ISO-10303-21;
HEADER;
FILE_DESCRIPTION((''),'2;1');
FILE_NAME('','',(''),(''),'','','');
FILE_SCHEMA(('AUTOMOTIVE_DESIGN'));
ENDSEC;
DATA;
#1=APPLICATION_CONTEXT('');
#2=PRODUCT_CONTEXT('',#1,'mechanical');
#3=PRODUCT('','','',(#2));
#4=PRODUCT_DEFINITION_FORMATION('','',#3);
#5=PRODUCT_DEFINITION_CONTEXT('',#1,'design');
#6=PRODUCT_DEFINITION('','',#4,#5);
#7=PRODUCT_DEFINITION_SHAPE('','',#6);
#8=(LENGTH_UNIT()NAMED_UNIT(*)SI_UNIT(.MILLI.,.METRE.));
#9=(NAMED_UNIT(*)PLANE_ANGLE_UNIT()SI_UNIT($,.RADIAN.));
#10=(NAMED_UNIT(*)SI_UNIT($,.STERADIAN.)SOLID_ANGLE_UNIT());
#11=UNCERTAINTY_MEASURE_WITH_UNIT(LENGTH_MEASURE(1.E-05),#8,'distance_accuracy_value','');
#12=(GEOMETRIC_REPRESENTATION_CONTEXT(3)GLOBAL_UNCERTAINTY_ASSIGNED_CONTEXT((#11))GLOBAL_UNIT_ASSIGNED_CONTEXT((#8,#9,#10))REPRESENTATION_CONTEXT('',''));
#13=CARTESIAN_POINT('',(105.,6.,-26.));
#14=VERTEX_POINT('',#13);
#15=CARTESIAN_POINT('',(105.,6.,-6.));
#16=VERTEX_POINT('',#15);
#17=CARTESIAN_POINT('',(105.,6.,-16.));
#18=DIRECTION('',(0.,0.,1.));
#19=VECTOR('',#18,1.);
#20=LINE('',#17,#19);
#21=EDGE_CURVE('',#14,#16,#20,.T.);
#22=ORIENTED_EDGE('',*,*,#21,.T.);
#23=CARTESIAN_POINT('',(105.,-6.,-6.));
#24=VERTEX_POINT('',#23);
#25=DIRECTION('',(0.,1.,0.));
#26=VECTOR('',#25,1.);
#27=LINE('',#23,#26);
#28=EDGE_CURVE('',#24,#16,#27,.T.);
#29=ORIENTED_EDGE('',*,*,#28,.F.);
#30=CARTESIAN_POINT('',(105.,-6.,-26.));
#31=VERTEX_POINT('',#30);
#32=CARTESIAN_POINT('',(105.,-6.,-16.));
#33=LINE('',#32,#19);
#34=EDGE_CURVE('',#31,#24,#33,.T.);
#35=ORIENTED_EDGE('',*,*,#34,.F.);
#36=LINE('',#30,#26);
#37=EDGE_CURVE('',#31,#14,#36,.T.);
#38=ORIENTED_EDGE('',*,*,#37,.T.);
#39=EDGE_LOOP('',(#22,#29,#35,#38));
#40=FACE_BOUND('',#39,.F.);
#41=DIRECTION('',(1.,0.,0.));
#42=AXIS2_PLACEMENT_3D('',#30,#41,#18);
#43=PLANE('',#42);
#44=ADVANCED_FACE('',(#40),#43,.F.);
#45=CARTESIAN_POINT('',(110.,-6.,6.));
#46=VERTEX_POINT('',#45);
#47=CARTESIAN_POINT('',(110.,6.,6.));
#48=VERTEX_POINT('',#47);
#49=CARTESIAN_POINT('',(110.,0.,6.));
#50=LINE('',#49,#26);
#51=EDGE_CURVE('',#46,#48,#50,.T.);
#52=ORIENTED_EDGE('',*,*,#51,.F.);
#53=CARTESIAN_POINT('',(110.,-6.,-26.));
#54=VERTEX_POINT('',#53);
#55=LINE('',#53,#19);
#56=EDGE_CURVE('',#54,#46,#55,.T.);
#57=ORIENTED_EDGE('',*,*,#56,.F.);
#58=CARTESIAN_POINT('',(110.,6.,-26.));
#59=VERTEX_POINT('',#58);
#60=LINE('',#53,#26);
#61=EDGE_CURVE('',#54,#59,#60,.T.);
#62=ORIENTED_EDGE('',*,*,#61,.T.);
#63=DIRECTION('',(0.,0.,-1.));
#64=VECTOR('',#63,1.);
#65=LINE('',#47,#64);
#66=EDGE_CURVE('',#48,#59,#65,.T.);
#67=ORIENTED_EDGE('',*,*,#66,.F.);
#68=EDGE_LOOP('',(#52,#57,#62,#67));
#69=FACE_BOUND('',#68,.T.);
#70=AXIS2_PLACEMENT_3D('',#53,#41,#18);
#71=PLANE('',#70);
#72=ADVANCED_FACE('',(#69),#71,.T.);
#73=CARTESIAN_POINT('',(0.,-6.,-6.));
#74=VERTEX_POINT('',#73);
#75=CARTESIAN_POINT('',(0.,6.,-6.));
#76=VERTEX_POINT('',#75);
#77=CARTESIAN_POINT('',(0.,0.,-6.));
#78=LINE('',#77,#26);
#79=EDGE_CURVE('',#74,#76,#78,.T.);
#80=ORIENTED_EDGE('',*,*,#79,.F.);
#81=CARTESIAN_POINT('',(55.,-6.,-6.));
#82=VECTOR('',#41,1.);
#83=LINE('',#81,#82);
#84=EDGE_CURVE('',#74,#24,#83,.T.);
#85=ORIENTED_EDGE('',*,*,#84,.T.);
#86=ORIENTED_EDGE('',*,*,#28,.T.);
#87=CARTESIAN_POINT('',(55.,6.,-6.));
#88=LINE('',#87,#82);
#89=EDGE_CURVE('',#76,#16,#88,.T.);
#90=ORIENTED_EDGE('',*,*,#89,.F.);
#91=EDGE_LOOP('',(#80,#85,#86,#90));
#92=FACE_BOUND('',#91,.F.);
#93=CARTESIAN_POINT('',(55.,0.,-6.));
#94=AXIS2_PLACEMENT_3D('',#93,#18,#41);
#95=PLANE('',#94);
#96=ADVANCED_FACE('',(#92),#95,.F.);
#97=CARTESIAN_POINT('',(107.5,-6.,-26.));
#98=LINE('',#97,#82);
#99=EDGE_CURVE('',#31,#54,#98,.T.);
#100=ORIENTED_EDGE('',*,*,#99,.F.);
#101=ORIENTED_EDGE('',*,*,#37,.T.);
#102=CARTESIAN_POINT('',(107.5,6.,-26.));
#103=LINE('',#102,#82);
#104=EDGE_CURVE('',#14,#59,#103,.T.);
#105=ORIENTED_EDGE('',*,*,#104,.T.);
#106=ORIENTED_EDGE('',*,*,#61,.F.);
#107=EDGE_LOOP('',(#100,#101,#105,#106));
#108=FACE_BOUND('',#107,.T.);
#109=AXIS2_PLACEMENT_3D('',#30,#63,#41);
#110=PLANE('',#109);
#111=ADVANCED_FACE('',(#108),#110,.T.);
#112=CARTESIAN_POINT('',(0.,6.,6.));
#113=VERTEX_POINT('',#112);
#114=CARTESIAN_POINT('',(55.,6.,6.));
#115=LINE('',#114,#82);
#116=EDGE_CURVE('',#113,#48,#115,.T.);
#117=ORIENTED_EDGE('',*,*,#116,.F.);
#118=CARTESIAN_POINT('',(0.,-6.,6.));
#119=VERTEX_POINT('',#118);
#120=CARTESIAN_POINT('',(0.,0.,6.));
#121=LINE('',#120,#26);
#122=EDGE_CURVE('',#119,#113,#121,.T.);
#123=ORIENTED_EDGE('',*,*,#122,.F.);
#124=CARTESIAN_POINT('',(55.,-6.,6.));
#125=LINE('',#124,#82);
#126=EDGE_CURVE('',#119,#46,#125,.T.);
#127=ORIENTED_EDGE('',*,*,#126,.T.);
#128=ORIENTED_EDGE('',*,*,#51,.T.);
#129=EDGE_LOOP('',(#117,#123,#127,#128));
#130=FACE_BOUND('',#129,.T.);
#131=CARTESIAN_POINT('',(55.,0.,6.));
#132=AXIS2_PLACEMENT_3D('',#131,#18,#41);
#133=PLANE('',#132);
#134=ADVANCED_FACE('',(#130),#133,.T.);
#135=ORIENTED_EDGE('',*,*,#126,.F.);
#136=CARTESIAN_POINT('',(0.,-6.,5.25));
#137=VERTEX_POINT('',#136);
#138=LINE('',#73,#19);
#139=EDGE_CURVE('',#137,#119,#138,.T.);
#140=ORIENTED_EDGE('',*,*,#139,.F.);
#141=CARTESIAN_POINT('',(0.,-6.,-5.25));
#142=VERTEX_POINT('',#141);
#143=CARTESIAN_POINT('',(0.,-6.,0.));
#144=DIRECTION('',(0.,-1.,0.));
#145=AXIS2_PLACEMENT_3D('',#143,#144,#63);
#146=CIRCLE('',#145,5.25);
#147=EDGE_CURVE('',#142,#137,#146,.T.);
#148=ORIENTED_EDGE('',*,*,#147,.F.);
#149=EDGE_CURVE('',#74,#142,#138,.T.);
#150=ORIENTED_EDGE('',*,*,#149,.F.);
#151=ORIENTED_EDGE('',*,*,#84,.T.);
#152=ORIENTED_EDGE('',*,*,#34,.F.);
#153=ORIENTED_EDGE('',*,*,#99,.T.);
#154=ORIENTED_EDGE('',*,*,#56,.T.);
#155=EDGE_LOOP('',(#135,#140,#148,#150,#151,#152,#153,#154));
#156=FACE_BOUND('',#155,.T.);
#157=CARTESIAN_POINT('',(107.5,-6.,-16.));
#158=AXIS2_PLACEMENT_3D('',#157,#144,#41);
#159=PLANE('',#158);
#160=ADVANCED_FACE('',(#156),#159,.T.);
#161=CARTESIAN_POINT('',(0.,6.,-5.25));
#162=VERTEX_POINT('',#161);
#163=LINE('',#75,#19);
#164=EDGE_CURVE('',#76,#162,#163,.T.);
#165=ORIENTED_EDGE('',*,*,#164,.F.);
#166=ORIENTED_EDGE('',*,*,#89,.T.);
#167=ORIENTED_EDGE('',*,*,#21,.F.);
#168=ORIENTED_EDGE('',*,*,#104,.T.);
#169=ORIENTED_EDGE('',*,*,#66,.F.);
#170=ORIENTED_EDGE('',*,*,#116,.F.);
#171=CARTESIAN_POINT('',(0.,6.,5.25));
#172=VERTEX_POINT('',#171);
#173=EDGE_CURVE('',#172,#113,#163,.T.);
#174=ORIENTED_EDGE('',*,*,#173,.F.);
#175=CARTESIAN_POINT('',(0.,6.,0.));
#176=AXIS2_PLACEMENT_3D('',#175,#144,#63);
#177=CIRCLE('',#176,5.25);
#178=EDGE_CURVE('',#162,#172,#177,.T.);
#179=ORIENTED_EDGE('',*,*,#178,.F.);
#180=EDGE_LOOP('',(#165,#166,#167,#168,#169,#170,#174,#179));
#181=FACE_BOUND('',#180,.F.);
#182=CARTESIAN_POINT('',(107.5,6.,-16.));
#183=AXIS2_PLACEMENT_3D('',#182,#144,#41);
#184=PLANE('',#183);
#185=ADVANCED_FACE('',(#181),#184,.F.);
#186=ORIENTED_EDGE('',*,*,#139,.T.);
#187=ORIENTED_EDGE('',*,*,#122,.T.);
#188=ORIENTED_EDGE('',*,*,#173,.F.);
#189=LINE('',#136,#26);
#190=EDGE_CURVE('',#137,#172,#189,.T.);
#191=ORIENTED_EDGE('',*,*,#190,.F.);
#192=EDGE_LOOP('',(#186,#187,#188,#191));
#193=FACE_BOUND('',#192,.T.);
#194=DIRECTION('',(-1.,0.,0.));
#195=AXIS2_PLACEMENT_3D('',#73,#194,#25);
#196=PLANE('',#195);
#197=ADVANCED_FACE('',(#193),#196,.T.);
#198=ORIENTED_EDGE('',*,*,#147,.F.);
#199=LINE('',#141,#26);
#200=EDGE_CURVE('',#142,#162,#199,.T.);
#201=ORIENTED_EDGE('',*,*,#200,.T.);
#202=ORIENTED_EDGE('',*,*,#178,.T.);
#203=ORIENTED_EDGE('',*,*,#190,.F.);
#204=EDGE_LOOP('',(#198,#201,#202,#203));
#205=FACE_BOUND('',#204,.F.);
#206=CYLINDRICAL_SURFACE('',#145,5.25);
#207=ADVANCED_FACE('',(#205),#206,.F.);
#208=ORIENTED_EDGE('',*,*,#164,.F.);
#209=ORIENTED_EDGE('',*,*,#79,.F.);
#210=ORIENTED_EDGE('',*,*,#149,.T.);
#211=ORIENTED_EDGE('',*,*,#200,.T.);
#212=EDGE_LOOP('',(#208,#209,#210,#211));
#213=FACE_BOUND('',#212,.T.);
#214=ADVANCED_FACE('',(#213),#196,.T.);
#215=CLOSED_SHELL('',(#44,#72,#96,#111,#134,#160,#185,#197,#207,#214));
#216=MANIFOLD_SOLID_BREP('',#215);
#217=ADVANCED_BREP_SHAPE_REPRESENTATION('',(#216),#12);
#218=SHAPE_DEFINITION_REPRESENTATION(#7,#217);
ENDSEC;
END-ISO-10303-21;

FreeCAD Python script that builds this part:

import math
import FreeCAD as App
import Part
import Sketcher

V = App.Vector


def add_polygon(sketch, points):
    """Adds a closed chain of lines whose ends are joined by coincident constraints."""
    first, n = sketch.GeometryCount, len(points)
    for a, b in zip(points, points[1:] + points[:1]):
        sketch.addGeometry(Part.LineSegment(App.Vector(*a, 0), App.Vector(*b, 0)), False)
    for i in range(n):
        sketch.addConstraint(Sketcher.Constraint("Coincident", first + i, 2, first + (i + 1) % n, 1))

doc = App.newDocument("Part")
params = doc.addObject("Spreadsheet::Sheet", "Params")
for row, (alias, value) in enumerate([
    ("sketch1_width", "110 mm"),
    ("sketch1_height", "12 mm"),
    ("pad1_length", "12 mm"),
    ("sketch2_radius", "5.25 mm"),
    ("pocket1_length", "12 mm"),
    ("sketch3_width", "5 mm"),
    ("sketch3_height", "20 mm"),
    ("pad2_length", "12 mm"),
], start=1):
    params.set(f"A{row}", alias)
    params.set(f"B{row}", "=" + value)
    params.setAlias(f"B{row}", alias)

body = doc.addObject("PartDesign::Body", "Body")

# Sketch on XY plane
sketch1 = body.newObject("Sketcher::SketchObject", "Sketch")
sketch1.AttachmentSupport = (doc.getObject("XY_Plane"), [""])
sketch1.MapMode = "FlatFace"
sketch1.AttachmentOffset = App.Placement(V(0, 0, -6), App.Rotation())
add_polygon(sketch1, [(0, 6), (0, -6), (110, -6), (110, 6)])  # lines 0-3
sketch1.addConstraint([
    Sketcher.Constraint("Vertical", 0),
    Sketcher.Constraint("Horizontal", 1),
    Sketcher.Constraint("Vertical", 2),
    Sketcher.Constraint("Horizontal", 3),
    Sketcher.Constraint("Symmetric", 0, 2, 3, 2, -1, 1),
    Sketcher.Constraint("DistanceX", 1, 1, 1, 2, 110.0),
    Sketcher.Constraint("DistanceY", 0, 2, 0, 1, 12.0),
])
sketch1.setExpression("Constraints[9]", "Params.sketch1_width")
sketch1.setExpression("Constraints[10]", "Params.sketch1_height")
pad1 = body.newObject("PartDesign::Pad", "Pad")
pad1.Profile = sketch1
pad1.setExpression("Length", "Params.pad1_length")

# Sketch on XZ plane
sketch2 = body.newObject("Sketcher::SketchObject", "Sketch001")
sketch2.AttachmentSupport = (doc.getObject("XZ_Plane"), [""])
sketch2.MapMode = "FlatFace"
sketch2.AttachmentOffset = App.Placement(V(0, 0, 6), App.Rotation())
sketch2.addGeometry([
    Part.ArcOfCircle(Part.Circle(V(0, 0, 0), V(0, 0, 1), 5.25), math.radians(-90), math.radians(90)),
    Part.LineSegment(V(0, 5.25, 0), V(0, -5.25, 0)),
], False)
sketch2.addConstraint([
    Sketcher.Constraint("Coincident", 0, 1, 1, 2),
    Sketcher.Constraint("Coincident", 1, 1, 0, 2),
    Sketcher.Constraint("Vertical", 1),
    Sketcher.Constraint("Coincident", 0, 3, -1, 1),
    Sketcher.Constraint("PointOnObject", 0, 1, -2),
    Sketcher.Constraint("Radius", 0, 5.25),
])
sketch2.setExpression("Constraints[5]", "Params.sketch2_radius")
pocket1 = body.newObject("PartDesign::Pocket", "Pocket")
pocket1.Profile = sketch2
pocket1.setExpression("Length", "Params.pocket1_length")

# Sketch on XZ plane
sketch3 = body.newObject("Sketcher::SketchObject", "Sketch002")
sketch3.AttachmentSupport = (doc.getObject("XZ_Plane"), [""])
sketch3.MapMode = "FlatFace"
sketch3.AttachmentOffset = App.Placement(V(0, 0, 6), App.Rotation())
add_polygon(sketch3, [(105, -6), (105, -26), (110, -26), (110, -6)])  # lines 0-3
sketch3.addConstraint([
    Sketcher.Constraint("Vertical", 0),
    Sketcher.Constraint("Horizontal", 1),
    Sketcher.Constraint("Vertical", 2),
    Sketcher.Constraint("Horizontal", 3),
    Sketcher.Constraint("DistanceX", 1, 1, 1, 2, 5.0),
    Sketcher.Constraint("DistanceY", 0, 2, 0, 1, 20.0),
    Sketcher.Constraint("DistanceX", -1, 1, 0, 2, 105.0),
    Sketcher.Constraint("DistanceY", 0, 2, -1, 1, 26.0),
])
sketch3.setExpression("Constraints[8]", "Params.sketch3_width")
sketch3.setExpression("Constraints[9]", "Params.sketch3_height")
pad2 = body.newObject("PartDesign::Pad", "Pad001")
pad2.Profile = sketch3
pad2.setExpression("Length", "Params.pad2_length")
pad2.Reversed = True

doc.recompute()
